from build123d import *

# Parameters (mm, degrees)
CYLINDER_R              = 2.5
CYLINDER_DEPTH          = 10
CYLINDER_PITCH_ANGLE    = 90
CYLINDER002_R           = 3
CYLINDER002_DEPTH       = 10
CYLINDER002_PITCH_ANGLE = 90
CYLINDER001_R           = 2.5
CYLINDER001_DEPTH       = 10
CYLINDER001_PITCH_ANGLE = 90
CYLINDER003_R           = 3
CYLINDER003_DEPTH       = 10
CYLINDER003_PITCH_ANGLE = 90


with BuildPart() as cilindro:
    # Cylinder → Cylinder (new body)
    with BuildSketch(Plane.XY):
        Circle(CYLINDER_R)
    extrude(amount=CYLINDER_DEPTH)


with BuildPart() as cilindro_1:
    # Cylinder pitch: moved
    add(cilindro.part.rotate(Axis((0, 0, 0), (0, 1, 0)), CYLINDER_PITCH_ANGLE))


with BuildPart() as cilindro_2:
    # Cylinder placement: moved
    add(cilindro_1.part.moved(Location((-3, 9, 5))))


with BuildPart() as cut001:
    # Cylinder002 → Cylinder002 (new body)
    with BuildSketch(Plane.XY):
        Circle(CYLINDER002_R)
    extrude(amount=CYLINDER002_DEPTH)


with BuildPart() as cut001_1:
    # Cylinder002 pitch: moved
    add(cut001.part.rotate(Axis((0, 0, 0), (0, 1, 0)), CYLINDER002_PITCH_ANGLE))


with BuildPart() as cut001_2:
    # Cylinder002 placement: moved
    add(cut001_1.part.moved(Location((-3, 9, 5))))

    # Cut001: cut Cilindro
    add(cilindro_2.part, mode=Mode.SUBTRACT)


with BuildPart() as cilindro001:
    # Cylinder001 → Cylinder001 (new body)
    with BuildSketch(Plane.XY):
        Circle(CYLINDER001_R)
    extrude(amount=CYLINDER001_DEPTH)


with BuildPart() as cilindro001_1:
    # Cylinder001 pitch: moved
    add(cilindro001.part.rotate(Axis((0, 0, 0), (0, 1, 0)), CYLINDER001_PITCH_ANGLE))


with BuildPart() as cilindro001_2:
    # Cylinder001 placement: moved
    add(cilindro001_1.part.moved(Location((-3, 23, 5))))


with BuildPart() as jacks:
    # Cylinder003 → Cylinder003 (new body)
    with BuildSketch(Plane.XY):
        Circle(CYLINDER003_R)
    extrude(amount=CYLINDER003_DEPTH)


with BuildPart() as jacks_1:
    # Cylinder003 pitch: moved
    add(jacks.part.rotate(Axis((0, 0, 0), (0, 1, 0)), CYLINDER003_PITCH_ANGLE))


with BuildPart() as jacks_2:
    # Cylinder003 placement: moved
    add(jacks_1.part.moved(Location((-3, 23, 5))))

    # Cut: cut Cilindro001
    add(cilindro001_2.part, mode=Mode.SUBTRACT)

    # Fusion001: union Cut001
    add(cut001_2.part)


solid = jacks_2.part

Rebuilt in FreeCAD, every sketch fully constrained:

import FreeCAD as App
import Part
import Sketcher

doc = App.newDocument("Part")
body = doc.addObject("PartDesign::Body", "Body")

# Sketch on XY plane
sketch1 = body.newObject("Sketcher::SketchObject", "Sketch")
sketch1.AttachmentSupport = (doc.getObject("XY_Plane"), [""])
sketch1.MapMode = "FlatFace"
sketch1.addGeometry(Part.Circle(App.Vector(0, 0, 0), App.Vector(0, 0, 1), 2.5), False)
sketch1.addConstraint([
    Sketcher.Constraint("Coincident", 0, 3, -1, 1),
    Sketcher.Constraint("Diameter", 0, 5.0),
])
pad1 = body.newObject("PartDesign::Pad", "Pad")
pad1.Profile = sketch1
pad1.Length = 10
body2 = doc.addObject("PartDesign::Body", "Body001")
doc.recompute()

body.Placement = App.Placement(App.Vector(0, 0, 0), App.Rotation(App.Vector(0, 1, 0), 90))
boolean = body2.newObject("PartDesign::Boolean", "Boolean")
boolean.Type = "Fuse"
boolean.addObjects([body])
body3 = doc.addObject("PartDesign::Body", "Body002")
doc.recompute()

body2.Placement = App.Placement(App.Vector(-3, 9, 5), App.Rotation(App.Vector(0, 0, 1), 0))
boolean2 = body3.newObject("PartDesign::Boolean", "Boolean001")
boolean2.Type = "Fuse"
boolean2.addObjects([body2])
body4 = doc.addObject("PartDesign::Body", "Body003")

# Sketch on XY plane
sketch2 = body4.newObject("Sketcher::SketchObject", "Sketch001")
sketch2.AttachmentSupport = (doc.getObject("XY_Plane003"), [""])
sketch2.MapMode = "FlatFace"
sketch2.addGeometry(Part.Circle(App.Vector(0, 0, 0), App.Vector(0, 0, 1), 3), False)
sketch2.addConstraint([
    Sketcher.Constraint("Coincident", 0, 3, -1, 1),
    Sketcher.Constraint("Diameter", 0, 6.0),
])
pad2 = body4.newObject("PartDesign::Pad", "Pad001")
pad2.Profile = sketch2
pad2.Length = 10
body5 = doc.addObject("PartDesign::Body", "Body004")
doc.recompute()

body4.Placement = App.Placement(App.Vector(0, 0, 0), App.Rotation(App.Vector(0, 1, 0), 90))
boolean3 = body5.newObject("PartDesign::Boolean", "Boolean002")
boolean3.Type = "Fuse"
boolean3.addObjects([body4])
body6 = doc.addObject("PartDesign::Body", "Body005")
doc.recompute()

body5.Placement = App.Placement(App.Vector(-3, 9, 5), App.Rotation(App.Vector(0, 0, 1), 0))
boolean4 = body6.newObject("PartDesign::Boolean", "Boolean003")
boolean4.Type = "Fuse"
boolean4.addObjects([body5])
doc.recompute()

boolean5 = body6.newObject("PartDesign::Boolean", "Boolean004")
boolean5.Type = "Cut"
boolean5.addObjects([body3])
body7 = doc.addObject("PartDesign::Body", "Body006")

# Sketch on XY plane
sketch3 = body7.newObject("Sketcher::SketchObject", "Sketch002")
sketch3.AttachmentSupport = (doc.getObject("XY_Plane006"), [""])
sketch3.MapMode = "FlatFace"
sketch3.addGeometry(Part.Circle(App.Vector(0, 0, 0), App.Vector(0, 0, 1), 2.5), False)
sketch3.addConstraint([
    Sketcher.Constraint("Coincident", 0, 3, -1, 1),
    Sketcher.Constraint("Diameter", 0, 5.0),
])
pad3 = body7.newObject("PartDesign::Pad", "Pad002")
pad3.Profile = sketch3
pad3.Length = 10
body8 = doc.addObject("PartDesign::Body", "Body007")
doc.recompute()

body7.Placement = App.Placement(App.Vector(0, 0, 0), App.Rotation(App.Vector(0, 1, 0), 90))
boolean6 = body8.newObject("PartDesign::Boolean", "Boolean005")
boolean6.Type = "Fuse"
boolean6.addObjects([body7])
body9 = doc.addObject("PartDesign::Body", "Body008")
doc.recompute()

body8.Placement = App.Placement(App.Vector(-3, 23, 5), App.Rotation(App.Vector(0, 0, 1), 0))
boolean7 = body9.newObject("PartDesign::Boolean", "Boolean006")
boolean7.Type = "Fuse"
boolean7.addObjects([body8])
body10 = doc.addObject("PartDesign::Body", "Body009")

# Sketch on XY plane
sketch4 = body10.newObject("Sketcher::SketchObject", "Sketch003")
sketch4.AttachmentSupport = (doc.getObject("XY_Plane009"), [""])
sketch4.MapMode = "FlatFace"
sketch4.addGeometry(Part.Circle(App.Vector(0, 0, 0), App.Vector(0, 0, 1), 3), False)
sketch4.addConstraint([
    Sketcher.Constraint("Coincident", 0, 3, -1, 1),
    Sketcher.Constraint("Diameter", 0, 6.0),
])
pad4 = body10.newObject("PartDesign::Pad", "Pad003")
pad4.Profile = sketch4
pad4.Length = 10
body11 = doc.addObject("PartDesign::Body", "Body010")
doc.recompute()

body10.Placement = App.Placement(App.Vector(0, 0, 0), App.Rotation(App.Vector(0, 1, 0), 90))
boolean8 = body11.newObject("PartDesign::Boolean", "Boolean007")
boolean8.Type = "Fuse"
boolean8.addObjects([body10])
body12 = doc.addObject("PartDesign::Body", "Body011")
body12.AllowCompound = True
doc.recompute()

body11.Placement = App.Placement(App.Vector(-3, 23, 5), App.Rotation(App.Vector(0, 0, 1), 0))
boolean9 = body12.newObject("PartDesign::Boolean", "Boolean008")
boolean9.Type = "Fuse"
boolean9.addObjects([body11])
doc.recompute()

boolean10 = body12.newObject("PartDesign::Boolean", "Boolean009")
boolean10.Type = "Cut"
boolean10.addObjects([body9])
doc.recompute()

boolean11 = body12.newObject("PartDesign::Boolean", "Boolean010")
boolean11.Type = "Fuse"
boolean11.addObjects([body6])

doc.recompute()
